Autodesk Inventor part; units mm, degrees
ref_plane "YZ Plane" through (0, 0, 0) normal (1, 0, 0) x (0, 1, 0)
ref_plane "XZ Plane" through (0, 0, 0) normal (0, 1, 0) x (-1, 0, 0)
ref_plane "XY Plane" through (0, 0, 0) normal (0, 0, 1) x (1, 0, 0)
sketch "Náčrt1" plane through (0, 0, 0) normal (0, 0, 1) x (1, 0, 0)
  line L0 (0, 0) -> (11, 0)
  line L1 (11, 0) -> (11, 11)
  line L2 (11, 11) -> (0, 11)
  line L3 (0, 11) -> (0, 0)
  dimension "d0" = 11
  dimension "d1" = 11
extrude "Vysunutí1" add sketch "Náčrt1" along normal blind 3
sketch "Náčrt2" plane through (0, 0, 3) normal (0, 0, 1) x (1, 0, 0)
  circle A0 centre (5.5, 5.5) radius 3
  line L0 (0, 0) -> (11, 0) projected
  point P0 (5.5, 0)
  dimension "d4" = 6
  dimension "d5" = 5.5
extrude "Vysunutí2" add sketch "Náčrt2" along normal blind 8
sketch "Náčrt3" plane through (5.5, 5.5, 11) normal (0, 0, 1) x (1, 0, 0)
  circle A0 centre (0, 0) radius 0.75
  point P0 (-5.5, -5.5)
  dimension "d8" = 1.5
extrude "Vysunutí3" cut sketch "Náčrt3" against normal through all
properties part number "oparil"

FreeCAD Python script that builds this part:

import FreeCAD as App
import Part
import Sketcher
Q = App.Units.Quantity


def add_polygon(sketch, points):
    """Adds a closed chain of lines whose ends are joined by coincident constraints."""
    first, n = sketch.GeometryCount, len(points)
    for a, b in zip(points, points[1:] + points[:1]):
        sketch.addGeometry(Part.LineSegment(App.Vector(*a, 0), App.Vector(*b, 0)), False)
    for i in range(n):
        sketch.addConstraint(Sketcher.Constraint("Coincident", first + i, 2, first + (i + 1) % n, 1))

doc = App.newDocument("Part")
body = doc.addObject("PartDesign::Body", "Body")

# Sketch on XY plane
sketch1 = doc.addObject("Sketcher::SketchObject", "Sketch")
body.addObject(sketch1)
sketch1.AttachmentSupport = (doc.XY_Plane, [""])
sketch1.MapMode = "FlatFace"
add_polygon(sketch1, [(0, 11), (0, 0), (11, 0), (11, 11)])  # lines 0-3
sketch1.addConstraint(Sketcher.Constraint("Vertical", 0))
sketch1.addConstraint(Sketcher.Constraint("Horizontal", 1))
sketch1.addConstraint(Sketcher.Constraint("Vertical", 2))
sketch1.addConstraint(Sketcher.Constraint("Horizontal", 3))
sketch1.addConstraint(Sketcher.Constraint("Coincident", 0, 2, -1, 1))
sketch1.addConstraint(Sketcher.Constraint("Equal", 3, 0))
sketch1.addConstraint(Sketcher.Constraint("DistanceX", 1, 1, 1, 2, Q("11 mm")))
pad1 = doc.addObject("PartDesign::Pad", "Pad")
body.addObject(pad1)
pad1.Profile = sketch1
pad1.Length = 3

# Sketch on XY plane
sketch2 = doc.addObject("Sketcher::SketchObject", "Sketch001")
body.addObject(sketch2)
sketch2.AttachmentSupport = (doc.XY_Plane, [""])
sketch2.MapMode = "FlatFace"
sketch2.AttachmentOffset = App.Placement(App.Vector(0, 0, 3), App.Rotation())
sketch2.addGeometry(Part.Circle(App.Vector(5.5, 5.5, 0), App.Vector(0, 0, 1), 3), False)
sketch2.addConstraint(Sketcher.Constraint("Diameter", 0, Q("6 mm")))
sketch2.addConstraint(Sketcher.Constraint("DistanceX", -1, 1, 0, 3, Q("5.5 mm")))
sketch2.addConstraint(Sketcher.Constraint("DistanceY", -1, 1, 0, 3, Q("5.5 mm")))
pad2 = doc.addObject("PartDesign::Pad", "Pad001")
body.addObject(pad2)
pad2.Profile = sketch2
pad2.Length = 8

# Sketch on XY plane
sketch3 = doc.addObject("Sketcher::SketchObject", "Sketch002")
body.addObject(sketch3)
sketch3.AttachmentSupport = (doc.XY_Plane, [""])
sketch3.MapMode = "FlatFace"
sketch3.AttachmentOffset = App.Placement(App.Vector(0, 0, 11), App.Rotation())
sketch3.addGeometry(Part.Circle(App.Vector(5.5, 5.5, 0), App.Vector(0, 0, 1), 0.8), False)
sketch3.addConstraint(Sketcher.Constraint("Diameter", 0, Q("1.5 mm")))
sketch3.addConstraint(Sketcher.Constraint("DistanceX", -1, 1, 0, 3, Q("5.5 mm")))
sketch3.addConstraint(Sketcher.Constraint("DistanceY", -1, 1, 0, 3, Q("5.5 mm")))
pocket1 = doc.addObject("PartDesign::Pocket", "Pocket")
body.addObject(pocket1)
pocket1.Profile = sketch3
pocket1.Type = "ThroughAll"

doc.recompute()
